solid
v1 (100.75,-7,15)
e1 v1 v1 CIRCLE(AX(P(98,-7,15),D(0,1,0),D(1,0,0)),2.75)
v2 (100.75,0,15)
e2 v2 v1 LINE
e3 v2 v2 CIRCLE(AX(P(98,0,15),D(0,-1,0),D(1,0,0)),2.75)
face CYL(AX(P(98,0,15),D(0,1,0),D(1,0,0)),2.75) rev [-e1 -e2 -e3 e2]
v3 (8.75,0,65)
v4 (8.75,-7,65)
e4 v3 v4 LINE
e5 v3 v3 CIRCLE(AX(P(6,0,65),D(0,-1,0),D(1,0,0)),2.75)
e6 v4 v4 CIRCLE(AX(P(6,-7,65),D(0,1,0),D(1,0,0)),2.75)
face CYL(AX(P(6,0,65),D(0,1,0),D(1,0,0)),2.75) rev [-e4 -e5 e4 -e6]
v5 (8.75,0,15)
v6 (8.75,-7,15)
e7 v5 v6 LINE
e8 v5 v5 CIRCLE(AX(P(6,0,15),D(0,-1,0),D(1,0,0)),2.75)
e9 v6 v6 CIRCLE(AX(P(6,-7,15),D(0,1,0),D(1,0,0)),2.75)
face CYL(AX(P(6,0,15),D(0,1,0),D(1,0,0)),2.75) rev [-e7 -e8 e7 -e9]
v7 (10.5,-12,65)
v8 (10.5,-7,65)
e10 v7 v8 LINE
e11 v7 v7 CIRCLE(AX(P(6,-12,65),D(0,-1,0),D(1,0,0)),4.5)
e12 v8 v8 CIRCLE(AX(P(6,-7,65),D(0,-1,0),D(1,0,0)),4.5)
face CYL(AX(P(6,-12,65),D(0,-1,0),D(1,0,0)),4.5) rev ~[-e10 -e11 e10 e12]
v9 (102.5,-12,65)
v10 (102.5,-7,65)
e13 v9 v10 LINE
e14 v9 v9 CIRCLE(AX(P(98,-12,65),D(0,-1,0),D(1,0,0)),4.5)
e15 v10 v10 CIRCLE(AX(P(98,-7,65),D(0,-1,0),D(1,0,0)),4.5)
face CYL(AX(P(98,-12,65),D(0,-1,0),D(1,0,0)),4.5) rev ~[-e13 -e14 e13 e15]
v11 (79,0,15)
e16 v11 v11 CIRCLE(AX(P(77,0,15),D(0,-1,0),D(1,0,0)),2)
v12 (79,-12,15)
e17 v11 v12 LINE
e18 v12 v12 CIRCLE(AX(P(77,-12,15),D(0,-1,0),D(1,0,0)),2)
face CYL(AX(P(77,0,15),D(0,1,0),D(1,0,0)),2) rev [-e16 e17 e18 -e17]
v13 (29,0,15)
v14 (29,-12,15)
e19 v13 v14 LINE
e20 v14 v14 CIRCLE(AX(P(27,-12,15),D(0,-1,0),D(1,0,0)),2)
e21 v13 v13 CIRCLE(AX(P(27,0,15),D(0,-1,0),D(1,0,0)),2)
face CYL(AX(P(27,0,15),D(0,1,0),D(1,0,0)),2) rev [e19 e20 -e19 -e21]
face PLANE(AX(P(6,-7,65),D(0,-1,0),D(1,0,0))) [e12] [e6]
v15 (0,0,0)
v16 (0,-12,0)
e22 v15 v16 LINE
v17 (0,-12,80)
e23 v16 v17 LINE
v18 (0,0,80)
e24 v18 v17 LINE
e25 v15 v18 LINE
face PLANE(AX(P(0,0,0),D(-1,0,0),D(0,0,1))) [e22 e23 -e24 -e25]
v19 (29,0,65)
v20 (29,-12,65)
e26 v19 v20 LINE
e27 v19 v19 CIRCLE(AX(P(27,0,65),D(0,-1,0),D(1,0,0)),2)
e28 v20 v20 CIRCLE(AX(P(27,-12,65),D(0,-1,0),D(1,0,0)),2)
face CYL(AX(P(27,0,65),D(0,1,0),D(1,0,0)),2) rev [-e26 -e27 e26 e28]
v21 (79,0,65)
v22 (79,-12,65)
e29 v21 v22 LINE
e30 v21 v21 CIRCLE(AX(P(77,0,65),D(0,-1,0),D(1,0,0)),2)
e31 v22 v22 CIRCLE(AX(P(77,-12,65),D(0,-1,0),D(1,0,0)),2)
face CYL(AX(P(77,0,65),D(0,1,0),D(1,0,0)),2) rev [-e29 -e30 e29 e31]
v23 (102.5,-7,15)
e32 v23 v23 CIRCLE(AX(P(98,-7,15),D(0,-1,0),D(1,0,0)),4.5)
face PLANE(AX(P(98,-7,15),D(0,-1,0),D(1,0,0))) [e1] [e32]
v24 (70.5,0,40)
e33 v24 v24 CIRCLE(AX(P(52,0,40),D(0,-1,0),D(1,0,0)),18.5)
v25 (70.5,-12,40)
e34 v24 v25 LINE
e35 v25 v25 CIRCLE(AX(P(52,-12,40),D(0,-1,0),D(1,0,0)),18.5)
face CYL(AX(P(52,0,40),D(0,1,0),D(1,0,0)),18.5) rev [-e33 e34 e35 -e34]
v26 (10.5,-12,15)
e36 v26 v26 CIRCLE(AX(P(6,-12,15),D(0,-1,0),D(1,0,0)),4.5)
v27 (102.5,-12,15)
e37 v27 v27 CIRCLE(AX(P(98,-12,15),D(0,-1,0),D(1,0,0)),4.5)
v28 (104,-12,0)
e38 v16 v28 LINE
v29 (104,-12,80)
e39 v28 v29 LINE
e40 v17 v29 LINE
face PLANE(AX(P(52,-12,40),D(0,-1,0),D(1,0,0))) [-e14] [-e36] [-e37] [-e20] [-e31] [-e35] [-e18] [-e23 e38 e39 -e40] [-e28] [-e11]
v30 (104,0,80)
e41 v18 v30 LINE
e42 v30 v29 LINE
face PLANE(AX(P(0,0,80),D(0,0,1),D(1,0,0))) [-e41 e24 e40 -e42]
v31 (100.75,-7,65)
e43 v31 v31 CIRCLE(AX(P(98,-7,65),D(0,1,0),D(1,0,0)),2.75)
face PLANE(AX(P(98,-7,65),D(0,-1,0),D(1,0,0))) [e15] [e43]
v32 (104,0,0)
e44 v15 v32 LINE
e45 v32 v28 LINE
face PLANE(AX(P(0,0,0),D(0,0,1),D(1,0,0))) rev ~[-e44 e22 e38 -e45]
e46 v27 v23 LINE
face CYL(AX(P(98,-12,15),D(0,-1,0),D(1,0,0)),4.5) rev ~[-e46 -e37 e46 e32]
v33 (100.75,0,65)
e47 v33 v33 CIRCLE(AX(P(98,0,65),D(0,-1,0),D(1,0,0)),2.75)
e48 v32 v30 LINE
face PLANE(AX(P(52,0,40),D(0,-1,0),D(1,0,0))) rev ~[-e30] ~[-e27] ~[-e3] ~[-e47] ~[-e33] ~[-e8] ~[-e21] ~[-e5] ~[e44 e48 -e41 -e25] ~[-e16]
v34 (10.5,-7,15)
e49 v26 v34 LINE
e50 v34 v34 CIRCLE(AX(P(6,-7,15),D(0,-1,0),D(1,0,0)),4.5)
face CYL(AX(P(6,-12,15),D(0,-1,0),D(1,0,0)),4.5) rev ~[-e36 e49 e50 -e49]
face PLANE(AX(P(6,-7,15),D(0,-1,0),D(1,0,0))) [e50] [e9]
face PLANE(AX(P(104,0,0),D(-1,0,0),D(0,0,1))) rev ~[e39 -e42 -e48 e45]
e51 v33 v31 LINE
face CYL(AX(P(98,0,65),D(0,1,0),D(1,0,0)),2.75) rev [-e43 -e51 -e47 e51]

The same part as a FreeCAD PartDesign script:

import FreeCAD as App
import Part
import Sketcher

doc = App.newDocument("Part")
body = doc.addObject("PartDesign::Body", "Body")

# Sketch on XZ plane
sketch1 = body.newObject("Sketcher::SketchObject", "Sketch")
sketch1.AttachmentSupport = (doc.getObject("XZ_Plane"), [""])
sketch1.MapMode = "FlatFace"
sketch1.addGeometry([
    Part.LineSegment(App.Vector(0, 80, 0), App.Vector(0, 0, 0)),  # 0
    Part.LineSegment(App.Vector(0, 0, 0), App.Vector(104, 0, 0)),  # 1
    Part.LineSegment(App.Vector(104, 0, 0), App.Vector(104, 80, 0)),  # 2
    Part.LineSegment(App.Vector(104, 80, 0), App.Vector(0, 80, 0)),  # 3
    Part.Circle(App.Vector(6, 15, 0), App.Vector(0, 0, 1), 2.8),  # 4
    Part.Circle(App.Vector(27, 15, 0), App.Vector(0, 0, 1), 2),  # 5
    Part.Circle(App.Vector(77, 15, 0), App.Vector(0, 0, 1), 2),  # 6
    Part.Circle(App.Vector(98, 15, 0), App.Vector(0, 0, 1), 2.8),  # 7
    Part.Circle(App.Vector(6, 65, 0), App.Vector(0, 0, 1), 2.8),  # 8
    Part.Circle(App.Vector(27, 65, 0), App.Vector(0, 0, 1), 2),  # 9
    Part.Circle(App.Vector(52, 40, 0), App.Vector(0, 0, 1), 18.5),  # 10
    Part.Circle(App.Vector(77, 65, 0), App.Vector(0, 0, 1), 2),  # 11
    Part.Circle(App.Vector(98, 65, 0), App.Vector(0, 0, 1), 2.8),  # 12
], False)
sketch1.addConstraint([
    Sketcher.Constraint("Coincident", 0, 2, 1, 1),
    Sketcher.Constraint("Coincident", 1, 2, 2, 1),
    Sketcher.Constraint("Coincident", 2, 2, 3, 1),
    Sketcher.Constraint("Coincident", 3, 2, 0, 1),
    Sketcher.Constraint("Vertical", 0),
    Sketcher.Constraint("Horizontal", 1),
    Sketcher.Constraint("Vertical", 2),
    Sketcher.Constraint("Horizontal", 3),
    Sketcher.Constraint("Coincident", 0, 2, -1, 1),
    Sketcher.Constraint("Equal", 5, 6),
    Sketcher.Constraint("Equal", 4, 7),
    Sketcher.Constraint("Equal", 7, 8),
    Sketcher.Constraint("Equal", 6, 9),
    Sketcher.Constraint("Equal", 9, 11),
    Sketcher.Constraint("Equal", 8, 12),
    Sketcher.Constraint("Horizontal", 4, 3, 5, 3),
    Sketcher.Constraint("Horizontal", 5, 3, 6, 3),
    Sketcher.Constraint("Horizontal", 6, 3, 7, 3),
    Sketcher.Constraint("Horizontal", 8, 3, 9, 3),
    Sketcher.Constraint("Horizontal", 9, 3, 11, 3),
    Sketcher.Constraint("Horizontal", 11, 3, 12, 3),
    Sketcher.Constraint("Vertical", 4, 3, 8, 3),
    Sketcher.Constraint("Vertical", 5, 3, 9, 3),
    Sketcher.Constraint("Vertical", 6, 3, 11, 3),
    Sketcher.Constraint("Vertical", 7, 3, 12, 3),
    Sketcher.Constraint("Diameter", 5, 4.0),
    Sketcher.Constraint("Diameter", 10, 37.0),
    Sketcher.Constraint("Diameter", 4, 5.5),
    Sketcher.Constraint("DistanceX", 1, 1, 1, 2, 104.0),
    Sketcher.Constraint("DistanceY", 0, 2, 0, 1, 80.0),
    Sketcher.Constraint("DistanceX", -1, 1, 4, 3, 6.0),
    Sketcher.Constraint("DistanceY", -1, 1, 4, 3, 15.0),
    Sketcher.Constraint("DistanceX", -1, 1, 5, 3, 27.0),
    Sketcher.Constraint("DistanceX", -1, 1, 6, 3, 77.0),
    Sketcher.Constraint("DistanceX", -1, 1, 7, 3, 98.0),
    Sketcher.Constraint("DistanceY", -1, 1, 8, 3, 65.0),
    Sketcher.Constraint("DistanceX", -1, 1, 10, 3, 52.0),
    Sketcher.Constraint("DistanceY", -1, 1, 10, 3, 40.0),
])
pad1 = body.newObject("PartDesign::Pad", "Pad")
pad1.Profile = sketch1
pad1.Length = 12

# Sketch on XZ plane
sketch2 = body.newObject("Sketcher::SketchObject", "Sketch001")
sketch2.AttachmentSupport = (doc.getObject("XZ_Plane"), [""])
sketch2.MapMode = "FlatFace"
sketch2.AttachmentOffset = App.Placement(App.Vector(0, 0, 12), App.Rotation())
sketch2.addGeometry([
    Part.Circle(App.Vector(6, 65, 0), App.Vector(0, 0, 1), 4.5),
    Part.Circle(App.Vector(98, 65, 0), App.Vector(0, 0, 1), 4.5),
    Part.Circle(App.Vector(98, 15, 0), App.Vector(0, 0, 1), 4.5),
    Part.Circle(App.Vector(6, 15, 0), App.Vector(0, 0, 1), 4.5),
], False)
sketch2.addConstraint([
    Sketcher.Constraint("Equal", 0, 1),
    Sketcher.Constraint("Equal", 1, 2),
    Sketcher.Constraint("Equal", 2, 3),
    Sketcher.Constraint("Horizontal", 0, 3, 1, 3),
    Sketcher.Constraint("Horizontal", 2, 3, 3, 3),
    Sketcher.Constraint("Vertical", 1, 3, 2, 3),
    Sketcher.Constraint("Vertical", 0, 3, 3, 3),
    Sketcher.Constraint("Diameter", 0, 9.0),
    Sketcher.Constraint("DistanceX", -1, 1, 0, 3, 6.0),
    Sketcher.Constraint("DistanceY", -1, 1, 0, 3, 65.0),
    Sketcher.Constraint("DistanceX", -1, 1, 1, 3, 98.0),
    Sketcher.Constraint("DistanceY", -1, 1, 2, 3, 15.0),
])
pocket1 = body.newObject("PartDesign::Pocket", "Pocket")
pocket1.Profile = sketch2
pocket1.Length = 5

doc.recompute()
